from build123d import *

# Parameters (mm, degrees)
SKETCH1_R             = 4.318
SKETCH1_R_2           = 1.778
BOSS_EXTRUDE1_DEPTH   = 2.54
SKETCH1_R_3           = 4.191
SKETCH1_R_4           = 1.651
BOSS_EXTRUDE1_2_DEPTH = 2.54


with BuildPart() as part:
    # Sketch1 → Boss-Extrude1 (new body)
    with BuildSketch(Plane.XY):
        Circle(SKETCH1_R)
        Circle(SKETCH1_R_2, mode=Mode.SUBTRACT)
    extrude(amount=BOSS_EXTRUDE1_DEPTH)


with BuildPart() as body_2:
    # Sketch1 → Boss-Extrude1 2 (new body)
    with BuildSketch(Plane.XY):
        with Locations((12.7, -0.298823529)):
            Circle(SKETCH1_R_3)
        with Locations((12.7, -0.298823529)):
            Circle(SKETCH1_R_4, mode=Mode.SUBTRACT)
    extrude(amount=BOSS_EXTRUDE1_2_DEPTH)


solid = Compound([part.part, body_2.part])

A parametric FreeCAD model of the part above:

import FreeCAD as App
import Part
import Sketcher

V = App.Vector
Q = App.Units.Quantity

doc = App.newDocument("Part")
body = doc.addObject("PartDesign::Body", "Body")

# Sketch on XY plane
sketch1 = body.newObject("Sketcher::SketchObject", "Sketch")
sketch1.AttachmentSupport = (doc.getObject("XY_Plane"), [""])
sketch1.MapMode = "FlatFace"
sketch1.addGeometry([
    Part.Circle(V(0, 0, 0), V(0, 0, 1), 4.318),
    Part.Circle(V(0, 0, 0), V(0, 0, 1), 1.778),
], False)
sketch1.addConstraint([
    Sketcher.Constraint("Coincident", 0, 3, -1, 1),
    Sketcher.Constraint("Coincident", 1, 3, -1, 1),
    Sketcher.Constraint("Diameter", 0, Q("0.34 in")),
    Sketcher.Constraint("Diameter", 1, Q("0.14 in")),
])
pad1 = body.newObject("PartDesign::Pad", "Pad")
pad1.Profile = sketch1
pad1.Length = Q("0.1 in")
body2 = doc.addObject("PartDesign::Body", "Body001")

# Sketch on XY plane
sketch2 = body2.newObject("Sketcher::SketchObject", "Sketch001")
sketch2.AttachmentSupport = (doc.getObject("XY_Plane001"), [""])
sketch2.MapMode = "FlatFace"
sketch2.addGeometry([
    Part.Circle(V(12.7, -0.298824, 0), V(0, 0, 1), 4.191),
    Part.Circle(V(12.7, -0.298824, 0), V(0, 0, 1), 1.651),
], False)
sketch2.addConstraint([
    Sketcher.Constraint("Coincident", 1, 3, 0, 3),
    Sketcher.Constraint("Diameter", 0, Q("0.33 in")),
    Sketcher.Constraint("Diameter", 1, Q("0.13 in")),
    Sketcher.Constraint("DistanceX", -1, 1, 0, 3, Q("0.5 in")),
    Sketcher.Constraint("DistanceY", 0, 3, -1, 1, 0.298824),
])
pad2 = body2.newObject("PartDesign::Pad", "Pad001")
pad2.Profile = sketch2
pad2.Length = Q("0.1 in")

doc.recompute()
